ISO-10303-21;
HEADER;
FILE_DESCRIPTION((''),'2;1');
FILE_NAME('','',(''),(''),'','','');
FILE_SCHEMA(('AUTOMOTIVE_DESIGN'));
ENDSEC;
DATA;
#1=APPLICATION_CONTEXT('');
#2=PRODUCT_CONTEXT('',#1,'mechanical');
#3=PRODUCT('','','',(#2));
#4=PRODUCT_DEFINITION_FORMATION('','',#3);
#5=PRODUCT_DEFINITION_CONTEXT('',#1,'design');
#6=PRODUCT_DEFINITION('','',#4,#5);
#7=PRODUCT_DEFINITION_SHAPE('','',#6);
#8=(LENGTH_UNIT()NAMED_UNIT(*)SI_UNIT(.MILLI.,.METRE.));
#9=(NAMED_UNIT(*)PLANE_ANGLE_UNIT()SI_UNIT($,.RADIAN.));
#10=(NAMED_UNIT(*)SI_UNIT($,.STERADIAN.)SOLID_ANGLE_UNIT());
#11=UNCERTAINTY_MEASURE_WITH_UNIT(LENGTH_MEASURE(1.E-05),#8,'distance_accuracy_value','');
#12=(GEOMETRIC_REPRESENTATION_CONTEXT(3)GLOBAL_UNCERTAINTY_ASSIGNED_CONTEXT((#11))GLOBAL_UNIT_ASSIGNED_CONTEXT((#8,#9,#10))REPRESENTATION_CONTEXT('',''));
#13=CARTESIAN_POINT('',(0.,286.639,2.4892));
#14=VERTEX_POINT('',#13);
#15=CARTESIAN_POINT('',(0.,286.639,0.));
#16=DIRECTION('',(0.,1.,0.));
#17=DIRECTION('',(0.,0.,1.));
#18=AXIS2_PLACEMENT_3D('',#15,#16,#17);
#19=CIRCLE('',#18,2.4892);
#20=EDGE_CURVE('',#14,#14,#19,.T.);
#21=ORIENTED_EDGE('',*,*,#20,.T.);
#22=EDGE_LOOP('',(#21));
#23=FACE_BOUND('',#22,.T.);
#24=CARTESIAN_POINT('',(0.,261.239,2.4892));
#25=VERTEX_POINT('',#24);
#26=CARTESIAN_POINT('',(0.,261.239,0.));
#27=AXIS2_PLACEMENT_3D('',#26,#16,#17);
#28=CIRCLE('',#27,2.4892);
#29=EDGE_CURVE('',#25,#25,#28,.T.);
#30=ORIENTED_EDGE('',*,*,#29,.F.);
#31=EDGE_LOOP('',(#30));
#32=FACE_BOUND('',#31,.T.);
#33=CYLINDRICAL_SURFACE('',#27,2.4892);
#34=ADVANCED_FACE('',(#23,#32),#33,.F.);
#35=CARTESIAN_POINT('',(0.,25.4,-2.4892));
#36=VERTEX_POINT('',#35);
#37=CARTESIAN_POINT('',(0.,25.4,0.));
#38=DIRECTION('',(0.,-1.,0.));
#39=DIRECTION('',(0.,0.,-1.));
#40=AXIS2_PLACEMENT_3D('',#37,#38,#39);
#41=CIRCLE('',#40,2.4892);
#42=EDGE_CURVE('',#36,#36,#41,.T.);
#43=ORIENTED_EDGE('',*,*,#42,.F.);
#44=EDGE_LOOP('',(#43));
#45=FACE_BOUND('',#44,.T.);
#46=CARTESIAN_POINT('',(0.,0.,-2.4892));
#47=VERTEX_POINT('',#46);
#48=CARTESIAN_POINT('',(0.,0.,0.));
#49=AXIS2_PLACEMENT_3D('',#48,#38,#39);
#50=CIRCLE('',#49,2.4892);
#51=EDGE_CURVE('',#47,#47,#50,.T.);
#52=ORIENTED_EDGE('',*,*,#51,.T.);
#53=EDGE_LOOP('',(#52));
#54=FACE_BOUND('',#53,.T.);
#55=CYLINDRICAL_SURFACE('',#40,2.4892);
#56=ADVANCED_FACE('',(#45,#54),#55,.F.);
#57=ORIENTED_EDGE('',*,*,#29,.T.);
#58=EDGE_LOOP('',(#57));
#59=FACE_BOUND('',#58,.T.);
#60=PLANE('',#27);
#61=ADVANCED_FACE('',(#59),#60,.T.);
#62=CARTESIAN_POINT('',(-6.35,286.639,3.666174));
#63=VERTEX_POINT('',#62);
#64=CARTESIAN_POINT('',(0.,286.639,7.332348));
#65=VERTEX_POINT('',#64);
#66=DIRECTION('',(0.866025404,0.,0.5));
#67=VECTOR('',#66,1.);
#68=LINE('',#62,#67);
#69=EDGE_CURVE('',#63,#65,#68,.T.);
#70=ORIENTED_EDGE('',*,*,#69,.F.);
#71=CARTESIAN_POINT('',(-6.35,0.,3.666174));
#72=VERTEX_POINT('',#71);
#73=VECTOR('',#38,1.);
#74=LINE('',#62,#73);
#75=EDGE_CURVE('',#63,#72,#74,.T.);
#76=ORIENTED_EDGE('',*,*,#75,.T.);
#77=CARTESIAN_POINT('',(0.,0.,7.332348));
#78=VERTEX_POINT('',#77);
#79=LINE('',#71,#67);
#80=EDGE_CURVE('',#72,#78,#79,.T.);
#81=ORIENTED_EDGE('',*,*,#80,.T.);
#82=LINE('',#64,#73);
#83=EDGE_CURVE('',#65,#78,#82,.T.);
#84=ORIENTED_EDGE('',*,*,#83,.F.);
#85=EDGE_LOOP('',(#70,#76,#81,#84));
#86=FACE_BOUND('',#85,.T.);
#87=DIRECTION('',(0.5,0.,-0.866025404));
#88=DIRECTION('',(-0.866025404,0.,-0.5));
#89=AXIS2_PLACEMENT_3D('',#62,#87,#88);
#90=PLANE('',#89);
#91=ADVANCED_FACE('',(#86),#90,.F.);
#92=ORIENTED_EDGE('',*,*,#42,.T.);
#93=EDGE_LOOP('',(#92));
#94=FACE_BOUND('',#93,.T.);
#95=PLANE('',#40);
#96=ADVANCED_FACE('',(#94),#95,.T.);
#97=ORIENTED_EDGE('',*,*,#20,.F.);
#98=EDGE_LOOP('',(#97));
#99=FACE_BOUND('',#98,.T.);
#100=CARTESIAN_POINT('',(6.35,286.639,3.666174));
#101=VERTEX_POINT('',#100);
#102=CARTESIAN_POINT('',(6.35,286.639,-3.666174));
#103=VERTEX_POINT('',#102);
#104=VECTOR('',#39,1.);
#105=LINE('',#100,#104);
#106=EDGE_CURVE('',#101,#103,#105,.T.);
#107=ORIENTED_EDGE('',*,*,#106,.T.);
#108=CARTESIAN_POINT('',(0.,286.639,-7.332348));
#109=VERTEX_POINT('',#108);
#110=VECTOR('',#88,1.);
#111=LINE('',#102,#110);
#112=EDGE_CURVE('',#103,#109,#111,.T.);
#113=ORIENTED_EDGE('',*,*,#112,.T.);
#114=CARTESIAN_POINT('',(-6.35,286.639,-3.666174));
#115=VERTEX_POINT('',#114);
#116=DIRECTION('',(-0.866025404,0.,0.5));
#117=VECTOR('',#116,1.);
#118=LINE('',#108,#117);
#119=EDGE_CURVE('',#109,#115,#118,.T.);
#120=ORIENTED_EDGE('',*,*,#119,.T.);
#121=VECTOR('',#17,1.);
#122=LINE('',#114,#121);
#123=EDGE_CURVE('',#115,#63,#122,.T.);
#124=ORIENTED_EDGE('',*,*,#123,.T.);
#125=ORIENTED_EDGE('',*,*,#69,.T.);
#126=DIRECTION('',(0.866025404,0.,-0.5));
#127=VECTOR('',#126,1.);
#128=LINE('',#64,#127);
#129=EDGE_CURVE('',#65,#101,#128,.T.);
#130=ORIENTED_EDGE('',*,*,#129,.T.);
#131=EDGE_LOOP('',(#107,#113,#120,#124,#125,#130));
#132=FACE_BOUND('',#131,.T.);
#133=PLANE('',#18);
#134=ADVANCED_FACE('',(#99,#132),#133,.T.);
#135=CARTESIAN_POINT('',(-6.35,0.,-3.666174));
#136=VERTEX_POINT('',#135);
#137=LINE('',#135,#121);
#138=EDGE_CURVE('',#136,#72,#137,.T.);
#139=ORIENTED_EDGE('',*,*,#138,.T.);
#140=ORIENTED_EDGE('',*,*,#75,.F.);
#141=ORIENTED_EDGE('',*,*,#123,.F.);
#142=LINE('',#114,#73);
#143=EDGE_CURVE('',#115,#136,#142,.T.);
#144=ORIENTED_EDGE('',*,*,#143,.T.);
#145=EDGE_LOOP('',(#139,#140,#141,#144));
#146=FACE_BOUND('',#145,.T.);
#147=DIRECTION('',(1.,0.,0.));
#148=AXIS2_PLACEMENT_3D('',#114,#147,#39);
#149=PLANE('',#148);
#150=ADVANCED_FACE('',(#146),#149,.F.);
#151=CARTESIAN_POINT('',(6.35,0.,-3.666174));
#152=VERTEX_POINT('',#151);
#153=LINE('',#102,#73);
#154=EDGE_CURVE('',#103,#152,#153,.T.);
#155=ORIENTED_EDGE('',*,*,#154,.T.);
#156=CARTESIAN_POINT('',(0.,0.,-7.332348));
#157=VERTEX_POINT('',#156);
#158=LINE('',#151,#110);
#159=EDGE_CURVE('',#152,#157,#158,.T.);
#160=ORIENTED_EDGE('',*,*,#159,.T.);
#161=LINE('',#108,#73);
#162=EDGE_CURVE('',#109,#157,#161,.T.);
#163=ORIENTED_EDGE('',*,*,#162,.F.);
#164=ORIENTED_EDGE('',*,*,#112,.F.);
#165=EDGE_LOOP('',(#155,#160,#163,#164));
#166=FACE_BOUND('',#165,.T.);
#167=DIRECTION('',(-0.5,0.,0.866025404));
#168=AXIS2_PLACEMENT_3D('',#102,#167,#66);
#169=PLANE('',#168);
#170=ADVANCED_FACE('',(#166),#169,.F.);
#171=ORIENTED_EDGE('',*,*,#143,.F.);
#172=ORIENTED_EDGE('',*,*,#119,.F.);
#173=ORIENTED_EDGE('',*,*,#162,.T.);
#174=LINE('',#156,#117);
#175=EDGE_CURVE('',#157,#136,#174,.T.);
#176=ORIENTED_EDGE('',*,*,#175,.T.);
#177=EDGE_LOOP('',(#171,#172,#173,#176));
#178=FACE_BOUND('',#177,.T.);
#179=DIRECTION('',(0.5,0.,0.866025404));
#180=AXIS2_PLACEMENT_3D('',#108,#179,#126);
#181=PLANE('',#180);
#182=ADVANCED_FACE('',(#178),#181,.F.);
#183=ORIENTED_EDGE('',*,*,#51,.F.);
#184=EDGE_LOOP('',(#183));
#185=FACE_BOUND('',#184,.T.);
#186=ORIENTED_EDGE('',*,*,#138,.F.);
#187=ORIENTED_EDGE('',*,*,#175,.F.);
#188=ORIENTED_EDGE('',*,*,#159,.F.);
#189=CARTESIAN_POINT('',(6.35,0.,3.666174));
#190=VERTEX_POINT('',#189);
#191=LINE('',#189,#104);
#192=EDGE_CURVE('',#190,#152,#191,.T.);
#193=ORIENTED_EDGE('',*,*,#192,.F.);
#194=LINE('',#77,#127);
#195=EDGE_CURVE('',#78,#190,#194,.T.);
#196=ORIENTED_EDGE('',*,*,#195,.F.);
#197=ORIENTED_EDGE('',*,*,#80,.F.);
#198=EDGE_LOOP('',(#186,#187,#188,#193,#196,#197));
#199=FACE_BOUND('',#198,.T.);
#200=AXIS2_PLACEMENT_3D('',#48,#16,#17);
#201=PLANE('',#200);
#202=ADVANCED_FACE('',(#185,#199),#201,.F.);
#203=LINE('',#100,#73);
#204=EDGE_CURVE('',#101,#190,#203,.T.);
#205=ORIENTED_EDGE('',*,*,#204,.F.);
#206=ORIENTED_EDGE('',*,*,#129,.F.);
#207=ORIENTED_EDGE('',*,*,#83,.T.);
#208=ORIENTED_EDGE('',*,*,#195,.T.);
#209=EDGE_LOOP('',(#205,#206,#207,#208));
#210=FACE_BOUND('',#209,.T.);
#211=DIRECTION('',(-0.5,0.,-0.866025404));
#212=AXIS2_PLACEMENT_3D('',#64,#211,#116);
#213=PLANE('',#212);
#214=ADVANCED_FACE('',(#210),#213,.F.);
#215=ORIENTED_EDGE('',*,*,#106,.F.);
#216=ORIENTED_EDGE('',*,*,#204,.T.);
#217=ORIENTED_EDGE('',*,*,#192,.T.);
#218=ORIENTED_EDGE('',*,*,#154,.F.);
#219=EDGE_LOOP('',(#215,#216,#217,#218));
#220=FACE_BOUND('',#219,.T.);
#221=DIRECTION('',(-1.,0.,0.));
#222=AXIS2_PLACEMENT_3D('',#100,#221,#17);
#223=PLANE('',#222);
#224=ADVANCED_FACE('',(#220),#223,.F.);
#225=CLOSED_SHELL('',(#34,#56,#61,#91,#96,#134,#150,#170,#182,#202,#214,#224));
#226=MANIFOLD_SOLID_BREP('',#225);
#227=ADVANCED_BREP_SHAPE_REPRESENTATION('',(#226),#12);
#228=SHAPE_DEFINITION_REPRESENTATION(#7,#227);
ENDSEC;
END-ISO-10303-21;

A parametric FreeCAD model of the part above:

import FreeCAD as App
import Part
import Sketcher
from FreeCAD import Vector
Q = App.Units.Quantity

doc = App.newDocument("Part")
body = doc.addObject("PartDesign::Body", "Body")

sketch1 = doc.addObject("Sketcher::SketchObject", "Sketch")
body.addObject(sketch1)
sketch1.AttachmentSupport = (doc.XZ_Plane, [""])
sketch1.MapMode = "FlatFace"
sketch1.addGeometry([
    Part.LineSegment(Vector(0, -7.332348, 0), Vector(-6.35, -3.666174, 0)),
    Part.LineSegment(Vector(-6.35, -3.666174, 0), Vector(-6.35, 3.666174, 0)),
    Part.LineSegment(Vector(-6.35, 3.666174, 0), Vector(0, 7.332348, 0)),
    Part.LineSegment(Vector(0, 7.332348, 0), Vector(6.35, 3.666174, 0)),
    Part.LineSegment(Vector(6.35, 3.666174, 0), Vector(6.35, -3.666174, 0)),
    Part.LineSegment(Vector(6.35, -3.666174, 0), Vector(0, -7.332348, 0)),
], False)
sketch1.addConstraint([
    Sketcher.Constraint("Coincident", 0, 2, 1, 1),
    Sketcher.Constraint("Coincident", 1, 2, 2, 1),
    Sketcher.Constraint("Coincident", 2, 2, 3, 1),
    Sketcher.Constraint("Coincident", 3, 2, 4, 1),
    Sketcher.Constraint("Coincident", 4, 2, 5, 1),
    Sketcher.Constraint("Coincident", 5, 2, 0, 1),
    Sketcher.Constraint("Vertical", 1),
    Sketcher.Constraint("Vertical", 4),
    Sketcher.Constraint("Symmetric", 0, 2, 3, 2, -1, 1),
    Sketcher.Constraint("Symmetric", 2, 2, 5, 2, -1, 1),
    Sketcher.Constraint("PointOnObject", 2, 2, -2),
    Sketcher.Constraint("Parallel", 2, 5),
    Sketcher.Constraint("Horizontal", 1, 2, 3, 2),
    Sketcher.Constraint("Angle", 0, Q("150 deg")),
    Sketcher.Constraint("DistanceX", 1, 2, 3, 2, Q("0.5 in")),
    Sketcher.Constraint("DistanceY", 1, 1, 1, 2, Q("7.332348 mm")),
])
pad1 = doc.addObject("PartDesign::Pad", "Pad")
body.addObject(pad1)
pad1.Profile = sketch1
pad1.Length = Q("11.285 in")
pad1.Reversed = True

sketch2 = doc.addObject("Sketcher::SketchObject", "Sketch001")
body.addObject(sketch2)
sketch2.AttachmentSupport = (doc.XZ_Plane, [""])
sketch2.MapMode = "FlatFace"
sketch2.AttachmentOffset = App.Placement(Vector(0, 0, -11.285 * 25.4), App.Rotation())
sketch2.addGeometry(Part.Circle(Vector(0, 0, 0), Vector(0, 0, 1), 2.4892), False)
sketch2.addConstraint([
    Sketcher.Constraint("Coincident", 0, 3, -1, 1),
    Sketcher.Constraint("Diameter", 0, Q("0.196 in")),
])
pocket1 = doc.addObject("PartDesign::Pocket", "Pocket")
body.addObject(pocket1)
pocket1.Profile = sketch2
pocket1.Length = Q("1 in")
pocket1.Reversed = True

sketch3 = doc.addObject("Sketcher::SketchObject", "Sketch002")
body.addObject(sketch3)
sketch3.AttachmentSupport = (doc.XZ_Plane, [""])
sketch3.MapMode = "FlatFace"
sketch3.addGeometry(Part.Circle(Vector(0, 0, 0), Vector(0, 0, 1), 2.4892), False)
sketch3.addConstraint([
    Sketcher.Constraint("Coincident", 0, 3, -1, 1),
    Sketcher.Constraint("Diameter", 0, Q("0.196 in")),
])
pocket2 = doc.addObject("PartDesign::Pocket", "Pocket001")
body.addObject(pocket2)
pocket2.Profile = sketch3
pocket2.Length = Q("1 in")

doc.recompute()
